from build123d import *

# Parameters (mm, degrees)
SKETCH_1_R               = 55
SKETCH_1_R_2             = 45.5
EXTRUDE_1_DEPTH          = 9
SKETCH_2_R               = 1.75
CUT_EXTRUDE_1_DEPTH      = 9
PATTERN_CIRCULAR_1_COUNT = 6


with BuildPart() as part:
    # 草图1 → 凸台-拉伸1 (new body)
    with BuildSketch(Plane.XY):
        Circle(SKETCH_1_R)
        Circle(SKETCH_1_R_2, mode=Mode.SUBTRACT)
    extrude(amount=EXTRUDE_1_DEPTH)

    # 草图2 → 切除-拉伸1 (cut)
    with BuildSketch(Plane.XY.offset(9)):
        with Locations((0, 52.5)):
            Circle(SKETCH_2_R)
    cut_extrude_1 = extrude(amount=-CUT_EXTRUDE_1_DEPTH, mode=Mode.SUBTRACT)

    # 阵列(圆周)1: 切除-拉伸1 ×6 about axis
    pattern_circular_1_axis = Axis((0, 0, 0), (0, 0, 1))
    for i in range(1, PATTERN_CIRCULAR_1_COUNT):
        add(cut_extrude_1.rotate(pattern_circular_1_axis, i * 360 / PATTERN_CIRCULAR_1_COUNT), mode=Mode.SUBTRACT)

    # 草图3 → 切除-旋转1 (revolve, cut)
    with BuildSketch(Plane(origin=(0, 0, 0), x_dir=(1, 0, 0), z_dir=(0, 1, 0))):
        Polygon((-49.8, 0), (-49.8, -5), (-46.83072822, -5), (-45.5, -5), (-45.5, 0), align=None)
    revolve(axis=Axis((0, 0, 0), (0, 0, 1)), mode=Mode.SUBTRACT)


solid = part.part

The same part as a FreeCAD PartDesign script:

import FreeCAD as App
import Part
import Sketcher

V = App.Vector

doc = App.newDocument("Part")
body = doc.addObject("PartDesign::Body", "Body")

# Sketch on XY plane
sketch1 = doc.addObject("Sketcher::SketchObject", "Sketch")
body.addObject(sketch1)
sketch1.AttachmentSupport = (doc.XY_Plane, [""])
sketch1.MapMode = "FlatFace"
sketch1.addGeometry(Part.Circle(V(0, 0, 0), V(0, 0, 1), 55), False)
sketch1.addGeometry(Part.Circle(V(0, 0, 0), V(0, 0, 1), 46), False)
sketch1.addConstraint(Sketcher.Constraint("Coincident", 0, 3, -1, 1))
sketch1.addConstraint(Sketcher.Constraint("Coincident", 1, 3, -1, 1))
sketch1.addConstraint(Sketcher.Constraint("Diameter", 0, 110.0))
sketch1.addConstraint(Sketcher.Constraint("Diameter", 1, 91.0))
pad1 = doc.addObject("PartDesign::Pad", "Pad")
body.addObject(pad1)
pad1.Profile = sketch1
pad1.Length = 9

# Sketch on XY plane
sketch2 = doc.addObject("Sketcher::SketchObject", "Sketch001")
body.addObject(sketch2)
sketch2.AttachmentSupport = (doc.XY_Plane, [""])
sketch2.MapMode = "FlatFace"
sketch2.AttachmentOffset = App.Placement(V(0, 0, 9), App.Rotation())
sketch2.addGeometry(Part.Circle(V(0, 52.5, 0), V(0, 0, 1), 1.8), False)
sketch2.addConstraint(Sketcher.Constraint("PointOnObject", 0, 3, -2))
sketch2.addConstraint(Sketcher.Constraint("Diameter", 0, 3.5))
sketch2.addConstraint(Sketcher.Constraint("DistanceY", -1, 1, 0, 3, 52.5))
pocket1 = doc.addObject("PartDesign::Pocket", "Pocket")
body.addObject(pocket1)
pocket1.Profile = sketch2
pocket1.Length = 9
doc.recompute()

polarpattern = doc.addObject("PartDesign::PolarPattern", "PolarPattern")
body.addObject(polarpattern)
polarpattern.Originals = [pocket1]
polarpattern.Axis = (doc.Z_Axis, [""])
polarpattern.Angle = 360
polarpattern.Occurrences = 6
body.Tip = polarpattern

# Sketch on XZ plane
sketch3 = doc.addObject("Sketcher::SketchObject", "Sketch002")
body.addObject(sketch3)
sketch3.AttachmentSupport = (doc.XZ_Plane, [""])
sketch3.MapMode = "FlatFace"
sketch3.addGeometry(Part.LineSegment(V(-49.8, 0, 0), V(-49.8, 5, 0)), False)
sketch3.addGeometry(Part.LineSegment(V(-49.8, 5, 0), V(-45.5, 5, 0)), False)
sketch3.addGeometry(Part.LineSegment(V(-45.5, 5, 0), V(-45.5, 0, 0)), False)
sketch3.addGeometry(Part.LineSegment(V(-45.5, 0, 0), V(-49.8, 0, 0)), False)
sketch3.addConstraint(Sketcher.Constraint("Coincident", 0, 2, 1, 1))
sketch3.addConstraint(Sketcher.Constraint("Coincident", 1, 2, 2, 1))
sketch3.addConstraint(Sketcher.Constraint("Coincident", 2, 2, 3, 1))
sketch3.addConstraint(Sketcher.Constraint("Coincident", 3, 2, 0, 1))
sketch3.addConstraint(Sketcher.Constraint("Vertical", 0))
sketch3.addConstraint(Sketcher.Constraint("Horizontal", 1))
sketch3.addConstraint(Sketcher.Constraint("Vertical", 2))
sketch3.addConstraint(Sketcher.Constraint("Horizontal", 3))
sketch3.addConstraint(Sketcher.Constraint("PointOnObject", 2, 2, -1))
sketch3.addConstraint(Sketcher.Constraint("DistanceY", 0, 1, 0, 2, 5.0))
sketch3.addConstraint(Sketcher.Constraint("DistanceX", 1, 1, 1, 2, 4.3))
sketch3.addConstraint(Sketcher.Constraint("DistanceX", 0, 2, -1, 1, 49.8))
groove = doc.addObject("PartDesign::Groove", "Groove")
body.addObject(groove)
groove.Profile = sketch3
groove.ReferenceAxis = (sketch3, ["V_Axis"])
groove.Angle = 360

doc.recompute()
